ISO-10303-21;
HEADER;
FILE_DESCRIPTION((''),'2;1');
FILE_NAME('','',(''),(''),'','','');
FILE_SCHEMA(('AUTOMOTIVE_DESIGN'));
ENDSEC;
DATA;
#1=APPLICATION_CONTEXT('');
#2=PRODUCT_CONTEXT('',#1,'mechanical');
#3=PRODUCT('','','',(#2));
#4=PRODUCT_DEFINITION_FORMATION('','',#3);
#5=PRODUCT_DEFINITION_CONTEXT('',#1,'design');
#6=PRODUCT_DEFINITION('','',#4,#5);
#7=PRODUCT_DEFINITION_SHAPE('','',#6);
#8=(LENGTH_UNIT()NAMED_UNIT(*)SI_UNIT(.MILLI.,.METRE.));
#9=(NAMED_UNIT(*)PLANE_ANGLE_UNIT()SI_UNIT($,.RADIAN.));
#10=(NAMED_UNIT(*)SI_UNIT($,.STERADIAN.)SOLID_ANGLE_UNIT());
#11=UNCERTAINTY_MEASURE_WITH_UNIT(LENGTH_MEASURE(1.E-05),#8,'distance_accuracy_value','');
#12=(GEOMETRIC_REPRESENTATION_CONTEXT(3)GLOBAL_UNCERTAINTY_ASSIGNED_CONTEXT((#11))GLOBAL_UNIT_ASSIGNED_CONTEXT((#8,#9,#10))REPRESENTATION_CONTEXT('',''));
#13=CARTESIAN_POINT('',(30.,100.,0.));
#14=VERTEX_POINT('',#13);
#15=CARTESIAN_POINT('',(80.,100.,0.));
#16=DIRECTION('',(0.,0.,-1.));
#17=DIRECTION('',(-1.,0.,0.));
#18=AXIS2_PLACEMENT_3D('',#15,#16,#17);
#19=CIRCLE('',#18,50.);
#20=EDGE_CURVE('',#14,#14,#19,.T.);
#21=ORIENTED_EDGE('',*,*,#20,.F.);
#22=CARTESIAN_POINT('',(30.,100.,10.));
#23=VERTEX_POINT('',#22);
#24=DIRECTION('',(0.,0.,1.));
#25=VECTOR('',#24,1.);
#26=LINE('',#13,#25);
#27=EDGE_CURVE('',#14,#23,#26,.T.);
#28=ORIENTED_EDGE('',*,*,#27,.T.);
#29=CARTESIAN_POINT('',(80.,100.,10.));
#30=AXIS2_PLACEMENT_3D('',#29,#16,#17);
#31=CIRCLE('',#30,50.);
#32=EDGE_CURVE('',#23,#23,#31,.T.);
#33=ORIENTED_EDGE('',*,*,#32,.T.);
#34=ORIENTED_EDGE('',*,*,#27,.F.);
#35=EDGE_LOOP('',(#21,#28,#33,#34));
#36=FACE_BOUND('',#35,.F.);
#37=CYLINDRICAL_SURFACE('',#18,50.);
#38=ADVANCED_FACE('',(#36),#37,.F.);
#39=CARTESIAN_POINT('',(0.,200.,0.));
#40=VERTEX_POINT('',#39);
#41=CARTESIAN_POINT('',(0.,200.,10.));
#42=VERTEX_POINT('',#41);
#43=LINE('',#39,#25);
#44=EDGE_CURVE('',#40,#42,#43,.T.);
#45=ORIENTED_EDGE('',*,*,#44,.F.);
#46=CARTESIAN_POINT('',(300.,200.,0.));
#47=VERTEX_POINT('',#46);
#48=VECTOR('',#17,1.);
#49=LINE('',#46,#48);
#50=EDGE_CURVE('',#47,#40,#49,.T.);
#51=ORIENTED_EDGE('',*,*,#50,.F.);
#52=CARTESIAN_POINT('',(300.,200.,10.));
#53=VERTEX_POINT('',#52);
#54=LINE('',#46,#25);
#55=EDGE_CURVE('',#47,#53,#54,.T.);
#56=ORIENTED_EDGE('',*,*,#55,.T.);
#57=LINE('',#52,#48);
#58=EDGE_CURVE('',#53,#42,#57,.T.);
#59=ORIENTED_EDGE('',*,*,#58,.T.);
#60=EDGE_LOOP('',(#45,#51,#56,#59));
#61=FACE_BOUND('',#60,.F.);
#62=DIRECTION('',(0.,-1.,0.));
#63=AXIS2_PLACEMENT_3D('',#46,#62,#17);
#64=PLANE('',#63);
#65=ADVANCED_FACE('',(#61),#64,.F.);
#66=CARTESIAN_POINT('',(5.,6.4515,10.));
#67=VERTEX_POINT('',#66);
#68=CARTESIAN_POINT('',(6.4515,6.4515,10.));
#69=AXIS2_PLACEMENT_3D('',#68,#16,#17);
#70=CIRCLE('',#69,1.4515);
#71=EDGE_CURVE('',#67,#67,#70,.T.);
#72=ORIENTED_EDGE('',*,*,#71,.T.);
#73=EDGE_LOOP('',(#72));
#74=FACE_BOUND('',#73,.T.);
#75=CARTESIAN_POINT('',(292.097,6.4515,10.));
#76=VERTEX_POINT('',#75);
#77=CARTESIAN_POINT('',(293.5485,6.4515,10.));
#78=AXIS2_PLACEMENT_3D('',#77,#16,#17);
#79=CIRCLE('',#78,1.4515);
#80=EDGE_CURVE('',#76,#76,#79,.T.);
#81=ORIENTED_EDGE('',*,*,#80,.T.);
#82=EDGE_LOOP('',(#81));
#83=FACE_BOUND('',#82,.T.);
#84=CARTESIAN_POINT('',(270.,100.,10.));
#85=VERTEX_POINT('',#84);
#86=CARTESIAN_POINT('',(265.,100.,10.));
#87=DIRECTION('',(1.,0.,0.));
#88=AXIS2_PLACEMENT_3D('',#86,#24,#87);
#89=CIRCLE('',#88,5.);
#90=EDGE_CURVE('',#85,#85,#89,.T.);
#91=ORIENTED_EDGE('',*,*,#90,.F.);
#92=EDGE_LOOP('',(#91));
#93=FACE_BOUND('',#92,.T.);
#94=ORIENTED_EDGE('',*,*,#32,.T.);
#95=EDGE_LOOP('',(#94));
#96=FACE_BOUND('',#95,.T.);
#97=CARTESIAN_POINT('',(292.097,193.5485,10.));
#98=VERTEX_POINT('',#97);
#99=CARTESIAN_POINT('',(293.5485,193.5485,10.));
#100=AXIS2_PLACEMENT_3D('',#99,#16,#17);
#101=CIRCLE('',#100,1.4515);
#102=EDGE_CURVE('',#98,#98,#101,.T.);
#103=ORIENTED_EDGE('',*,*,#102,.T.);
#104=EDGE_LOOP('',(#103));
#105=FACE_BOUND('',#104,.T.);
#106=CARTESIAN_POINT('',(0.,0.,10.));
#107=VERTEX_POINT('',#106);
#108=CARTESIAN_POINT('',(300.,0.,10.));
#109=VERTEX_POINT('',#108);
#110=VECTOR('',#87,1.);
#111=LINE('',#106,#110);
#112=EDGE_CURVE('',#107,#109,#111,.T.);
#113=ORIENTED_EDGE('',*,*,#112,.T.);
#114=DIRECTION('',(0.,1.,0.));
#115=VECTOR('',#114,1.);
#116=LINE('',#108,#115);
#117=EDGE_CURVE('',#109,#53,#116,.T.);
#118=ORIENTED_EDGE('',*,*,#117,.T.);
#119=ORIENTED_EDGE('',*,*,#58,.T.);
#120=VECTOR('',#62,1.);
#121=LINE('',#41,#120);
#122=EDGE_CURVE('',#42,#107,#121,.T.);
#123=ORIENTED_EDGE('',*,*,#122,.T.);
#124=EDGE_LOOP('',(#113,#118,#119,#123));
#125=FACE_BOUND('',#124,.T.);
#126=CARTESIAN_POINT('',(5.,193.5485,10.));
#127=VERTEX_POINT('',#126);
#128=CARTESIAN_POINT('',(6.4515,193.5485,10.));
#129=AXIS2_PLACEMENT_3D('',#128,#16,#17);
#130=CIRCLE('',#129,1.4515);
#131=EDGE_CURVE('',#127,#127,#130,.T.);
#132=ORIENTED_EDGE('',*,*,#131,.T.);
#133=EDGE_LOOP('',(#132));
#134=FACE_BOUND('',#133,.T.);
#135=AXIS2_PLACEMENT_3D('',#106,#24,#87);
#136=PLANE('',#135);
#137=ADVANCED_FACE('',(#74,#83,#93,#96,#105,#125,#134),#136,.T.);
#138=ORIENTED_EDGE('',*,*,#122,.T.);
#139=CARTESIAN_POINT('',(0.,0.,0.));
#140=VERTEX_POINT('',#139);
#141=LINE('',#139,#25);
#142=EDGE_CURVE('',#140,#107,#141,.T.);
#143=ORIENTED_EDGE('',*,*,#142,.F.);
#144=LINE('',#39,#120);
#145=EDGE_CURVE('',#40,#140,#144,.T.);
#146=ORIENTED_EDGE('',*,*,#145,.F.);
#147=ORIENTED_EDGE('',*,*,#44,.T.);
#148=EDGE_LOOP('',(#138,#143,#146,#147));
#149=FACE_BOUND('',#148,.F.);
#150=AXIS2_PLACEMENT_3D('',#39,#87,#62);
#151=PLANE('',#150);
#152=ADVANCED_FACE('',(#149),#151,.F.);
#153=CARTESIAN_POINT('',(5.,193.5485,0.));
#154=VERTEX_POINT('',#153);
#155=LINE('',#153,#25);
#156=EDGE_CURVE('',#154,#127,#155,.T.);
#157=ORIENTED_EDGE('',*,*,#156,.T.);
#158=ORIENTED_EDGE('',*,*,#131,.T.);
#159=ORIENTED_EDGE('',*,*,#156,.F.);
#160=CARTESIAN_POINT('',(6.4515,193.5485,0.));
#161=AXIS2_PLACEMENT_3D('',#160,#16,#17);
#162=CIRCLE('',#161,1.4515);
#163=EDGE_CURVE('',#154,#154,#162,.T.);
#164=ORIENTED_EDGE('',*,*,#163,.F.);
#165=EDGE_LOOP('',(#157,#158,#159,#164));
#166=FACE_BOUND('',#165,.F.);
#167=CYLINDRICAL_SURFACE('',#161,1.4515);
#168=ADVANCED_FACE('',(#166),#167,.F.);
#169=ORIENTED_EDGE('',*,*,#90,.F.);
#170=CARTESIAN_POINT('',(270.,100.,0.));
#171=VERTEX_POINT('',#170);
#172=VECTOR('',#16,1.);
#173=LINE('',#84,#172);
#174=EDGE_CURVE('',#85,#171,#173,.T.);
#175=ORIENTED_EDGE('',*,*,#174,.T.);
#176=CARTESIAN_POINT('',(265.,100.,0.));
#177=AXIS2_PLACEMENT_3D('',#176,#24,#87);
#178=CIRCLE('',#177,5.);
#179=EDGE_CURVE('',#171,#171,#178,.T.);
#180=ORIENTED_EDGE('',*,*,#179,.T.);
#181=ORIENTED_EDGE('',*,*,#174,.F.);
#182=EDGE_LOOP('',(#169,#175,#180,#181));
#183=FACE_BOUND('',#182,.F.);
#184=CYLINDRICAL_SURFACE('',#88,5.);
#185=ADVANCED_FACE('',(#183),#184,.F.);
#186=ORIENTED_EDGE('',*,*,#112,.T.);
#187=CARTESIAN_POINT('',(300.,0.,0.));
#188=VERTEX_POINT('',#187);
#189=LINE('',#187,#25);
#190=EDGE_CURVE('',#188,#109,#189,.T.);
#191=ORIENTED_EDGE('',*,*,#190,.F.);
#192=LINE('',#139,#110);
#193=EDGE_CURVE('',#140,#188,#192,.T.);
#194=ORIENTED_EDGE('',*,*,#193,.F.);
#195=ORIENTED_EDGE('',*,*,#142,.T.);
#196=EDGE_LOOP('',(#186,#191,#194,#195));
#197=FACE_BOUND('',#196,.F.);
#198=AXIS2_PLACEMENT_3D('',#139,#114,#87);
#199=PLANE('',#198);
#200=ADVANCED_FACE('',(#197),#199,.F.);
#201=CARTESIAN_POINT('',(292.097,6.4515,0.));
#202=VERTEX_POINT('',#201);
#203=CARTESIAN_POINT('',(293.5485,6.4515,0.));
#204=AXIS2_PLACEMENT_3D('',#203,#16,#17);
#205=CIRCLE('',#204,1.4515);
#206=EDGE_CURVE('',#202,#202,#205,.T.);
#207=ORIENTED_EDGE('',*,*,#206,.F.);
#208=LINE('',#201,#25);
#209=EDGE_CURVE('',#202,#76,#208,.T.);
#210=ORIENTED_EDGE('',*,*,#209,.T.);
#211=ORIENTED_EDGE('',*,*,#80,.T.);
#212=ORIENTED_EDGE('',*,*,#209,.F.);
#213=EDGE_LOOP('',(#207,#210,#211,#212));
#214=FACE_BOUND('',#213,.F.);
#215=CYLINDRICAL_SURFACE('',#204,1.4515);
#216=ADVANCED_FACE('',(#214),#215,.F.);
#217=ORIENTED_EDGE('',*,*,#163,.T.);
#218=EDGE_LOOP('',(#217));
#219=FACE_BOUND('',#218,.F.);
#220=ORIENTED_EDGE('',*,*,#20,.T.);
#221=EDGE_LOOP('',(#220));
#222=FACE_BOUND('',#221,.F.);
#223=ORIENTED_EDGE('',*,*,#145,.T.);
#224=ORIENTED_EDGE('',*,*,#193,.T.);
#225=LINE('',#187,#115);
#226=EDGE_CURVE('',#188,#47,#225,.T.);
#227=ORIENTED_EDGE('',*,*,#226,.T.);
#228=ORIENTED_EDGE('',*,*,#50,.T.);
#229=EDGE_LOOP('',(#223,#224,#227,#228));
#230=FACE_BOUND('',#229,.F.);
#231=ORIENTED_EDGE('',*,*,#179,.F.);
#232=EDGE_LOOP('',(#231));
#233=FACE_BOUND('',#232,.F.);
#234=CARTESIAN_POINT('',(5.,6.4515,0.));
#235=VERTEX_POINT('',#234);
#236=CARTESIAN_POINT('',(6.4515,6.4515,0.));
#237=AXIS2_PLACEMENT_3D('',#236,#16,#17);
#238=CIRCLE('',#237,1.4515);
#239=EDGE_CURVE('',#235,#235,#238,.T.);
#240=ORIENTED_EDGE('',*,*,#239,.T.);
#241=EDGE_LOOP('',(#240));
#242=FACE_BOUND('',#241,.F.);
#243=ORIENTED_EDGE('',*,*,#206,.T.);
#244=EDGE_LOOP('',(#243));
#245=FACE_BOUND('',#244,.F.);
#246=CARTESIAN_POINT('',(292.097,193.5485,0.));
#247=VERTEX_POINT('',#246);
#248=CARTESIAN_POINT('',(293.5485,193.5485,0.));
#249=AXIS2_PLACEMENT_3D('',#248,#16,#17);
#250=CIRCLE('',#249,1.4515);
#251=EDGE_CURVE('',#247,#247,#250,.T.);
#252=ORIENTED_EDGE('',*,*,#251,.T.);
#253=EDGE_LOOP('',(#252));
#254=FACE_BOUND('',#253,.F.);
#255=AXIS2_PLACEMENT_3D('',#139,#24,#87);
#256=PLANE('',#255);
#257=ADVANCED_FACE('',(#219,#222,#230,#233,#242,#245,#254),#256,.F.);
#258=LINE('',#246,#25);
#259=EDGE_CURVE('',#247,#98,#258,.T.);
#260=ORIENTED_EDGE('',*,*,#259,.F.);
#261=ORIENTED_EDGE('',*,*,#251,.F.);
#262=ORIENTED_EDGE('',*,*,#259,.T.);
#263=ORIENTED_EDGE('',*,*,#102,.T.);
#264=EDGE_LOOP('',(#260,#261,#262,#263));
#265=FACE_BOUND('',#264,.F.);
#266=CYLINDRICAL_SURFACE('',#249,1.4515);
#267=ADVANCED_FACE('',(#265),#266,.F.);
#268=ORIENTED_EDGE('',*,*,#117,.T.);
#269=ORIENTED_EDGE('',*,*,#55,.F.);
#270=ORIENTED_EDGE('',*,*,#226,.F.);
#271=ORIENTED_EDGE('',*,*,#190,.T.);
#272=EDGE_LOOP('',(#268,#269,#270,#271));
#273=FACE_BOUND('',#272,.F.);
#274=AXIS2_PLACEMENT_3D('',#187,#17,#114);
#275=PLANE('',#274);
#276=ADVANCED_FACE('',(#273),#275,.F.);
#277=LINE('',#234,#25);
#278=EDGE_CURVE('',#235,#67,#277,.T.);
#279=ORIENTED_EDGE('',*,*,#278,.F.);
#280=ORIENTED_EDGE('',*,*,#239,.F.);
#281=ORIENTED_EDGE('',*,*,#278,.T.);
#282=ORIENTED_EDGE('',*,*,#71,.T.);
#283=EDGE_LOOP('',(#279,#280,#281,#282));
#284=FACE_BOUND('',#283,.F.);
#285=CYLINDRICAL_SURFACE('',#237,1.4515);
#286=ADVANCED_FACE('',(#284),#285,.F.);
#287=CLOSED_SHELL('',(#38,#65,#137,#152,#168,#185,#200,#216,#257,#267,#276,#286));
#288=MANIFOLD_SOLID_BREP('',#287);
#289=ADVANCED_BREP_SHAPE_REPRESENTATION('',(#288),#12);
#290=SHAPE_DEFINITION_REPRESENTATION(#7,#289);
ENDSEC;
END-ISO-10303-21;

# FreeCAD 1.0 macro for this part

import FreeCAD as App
import Part
import Sketcher


def add_polygon(sketch, points):
    """Adds a closed chain of lines whose ends are joined by coincident constraints."""
    first, n = sketch.GeometryCount, len(points)
    for a, b in zip(points, points[1:] + points[:1]):
        sketch.addGeometry(Part.LineSegment(App.Vector(*a, 0), App.Vector(*b, 0)), False)
    for i in range(n):
        sketch.addConstraint(Sketcher.Constraint("Coincident", first + i, 2, first + (i + 1) % n, 1))

doc = App.newDocument("Part")
body = doc.addObject("PartDesign::Body", "Body")

sketch1 = doc.addObject("Sketcher::SketchObject", "Sketch")
body.addObject(sketch1)
sketch1.AttachmentSupport = (doc.XY_Plane, [""])
sketch1.MapMode = "FlatFace"
add_polygon(sketch1, [(0, 200), (0, 0), (300, 0), (300, 200)])
sketch1.addConstraint([
    Sketcher.Constraint("Vertical", 0),
    Sketcher.Constraint("Horizontal", 1),
    Sketcher.Constraint("Vertical", 2),
    Sketcher.Constraint("Horizontal", 3),
    Sketcher.Constraint("Coincident", 0, 2, -1, 1),
    Sketcher.Constraint("DistanceX", 1, 1, 1, 2, 300.0),
    Sketcher.Constraint("DistanceY", 0, 2, 0, 1, 200.0),
])
pad1 = doc.addObject("PartDesign::Pad", "Pad")
body.addObject(pad1)
pad1.Profile = sketch1
pad1.Length = 10

sketch2 = doc.addObject("Sketcher::SketchObject", "Sketch001")
body.addObject(sketch2)
sketch2.AttachmentSupport = (doc.XY_Plane, [""])
sketch2.MapMode = "FlatFace"
sketch2.addGeometry(Part.Circle(App.Vector(80, 100, 0), App.Vector(0, 0, 1), 50), False)
sketch2.addConstraint([
    Sketcher.Constraint("Diameter", 0, 100.0),
    Sketcher.Constraint("DistanceX", -1, 1, 0, 3, 80.0),
    Sketcher.Constraint("DistanceY", -1, 1, 0, 3, 100.0),
])
pocket1 = doc.addObject("PartDesign::Pocket", "Pocket")
body.addObject(pocket1)
pocket1.Profile = sketch2
pocket1.Type = "ThroughAll"
pocket1.Reversed = True

sketch3 = doc.addObject("Sketcher::SketchObject", "Sketch002")
body.addObject(sketch3)
sketch3.AttachmentSupport = (doc.XY_Plane, [""])
sketch3.MapMode = "FlatFace"
sketch3.AttachmentOffset = App.Placement(App.Vector(0, 0, 10), App.Rotation())
sketch3.addGeometry(Part.Circle(App.Vector(265, 100, 0), App.Vector(0, 0, 1), 5), False)
sketch3.addConstraint([
    Sketcher.Constraint("Diameter", 0, 10.0),
    Sketcher.Constraint("DistanceY", -1, 1, 0, 3, 100.0),
    Sketcher.Constraint("DistanceX", -1, 1, 0, 3, 265.0),
])
pocket2 = doc.addObject("PartDesign::Pocket", "Pocket001")
body.addObject(pocket2)
pocket2.Profile = sketch3
pocket2.Type = "ThroughAll"

sketch4 = doc.addObject("Sketcher::SketchObject", "Sketch003")
body.addObject(sketch4)
sketch4.AttachmentSupport = (doc.XY_Plane, [""])
sketch4.MapMode = "FlatFace"
sketch4.addGeometry([
    Part.Circle(App.Vector(6.4515, 6.4515, 0), App.Vector(0, 0, 1), 1.4515),
    Part.Circle(App.Vector(293.5485, 193.5485, 0), App.Vector(0, 0, 1), 1.4515),
    Part.Circle(App.Vector(293.5485, 6.4515, 0), App.Vector(0, 0, 1), 1.4515),
    Part.Circle(App.Vector(6.4515, 193.5485, 0), App.Vector(0, 0, 1), 1.4515),
], False)
sketch4.addConstraint([
    Sketcher.Constraint("Equal", 0, 1),
    Sketcher.Constraint("Equal", 1, 2),
    Sketcher.Constraint("Equal", 2, 3),
    Sketcher.Constraint("Horizontal", 0, 3, 2, 3),
    Sketcher.Constraint("Horizontal", 1, 3, 3, 3),
    Sketcher.Constraint("Vertical", 1, 3, 2, 3),
    Sketcher.Constraint("Vertical", 0, 3, 3, 3),
    Sketcher.Constraint("Diameter", 0, 2.903),
    Sketcher.Constraint("DistanceX", 0, 3, 1, 3, 287.097),
    Sketcher.Constraint("DistanceY", 0, 3, 1, 3, 187.097),
    Sketcher.Constraint("DistanceX", -1, 1, 0, 3, 6.4515),
    Sketcher.Constraint("DistanceY", -1, 1, 0, 3, 6.4515),
])
pocket3 = doc.addObject("PartDesign::Pocket", "Pocket002")
body.addObject(pocket3)
pocket3.Profile = sketch4
pocket3.Type = "ThroughAll"
pocket3.Reversed = True

doc.recompute()
